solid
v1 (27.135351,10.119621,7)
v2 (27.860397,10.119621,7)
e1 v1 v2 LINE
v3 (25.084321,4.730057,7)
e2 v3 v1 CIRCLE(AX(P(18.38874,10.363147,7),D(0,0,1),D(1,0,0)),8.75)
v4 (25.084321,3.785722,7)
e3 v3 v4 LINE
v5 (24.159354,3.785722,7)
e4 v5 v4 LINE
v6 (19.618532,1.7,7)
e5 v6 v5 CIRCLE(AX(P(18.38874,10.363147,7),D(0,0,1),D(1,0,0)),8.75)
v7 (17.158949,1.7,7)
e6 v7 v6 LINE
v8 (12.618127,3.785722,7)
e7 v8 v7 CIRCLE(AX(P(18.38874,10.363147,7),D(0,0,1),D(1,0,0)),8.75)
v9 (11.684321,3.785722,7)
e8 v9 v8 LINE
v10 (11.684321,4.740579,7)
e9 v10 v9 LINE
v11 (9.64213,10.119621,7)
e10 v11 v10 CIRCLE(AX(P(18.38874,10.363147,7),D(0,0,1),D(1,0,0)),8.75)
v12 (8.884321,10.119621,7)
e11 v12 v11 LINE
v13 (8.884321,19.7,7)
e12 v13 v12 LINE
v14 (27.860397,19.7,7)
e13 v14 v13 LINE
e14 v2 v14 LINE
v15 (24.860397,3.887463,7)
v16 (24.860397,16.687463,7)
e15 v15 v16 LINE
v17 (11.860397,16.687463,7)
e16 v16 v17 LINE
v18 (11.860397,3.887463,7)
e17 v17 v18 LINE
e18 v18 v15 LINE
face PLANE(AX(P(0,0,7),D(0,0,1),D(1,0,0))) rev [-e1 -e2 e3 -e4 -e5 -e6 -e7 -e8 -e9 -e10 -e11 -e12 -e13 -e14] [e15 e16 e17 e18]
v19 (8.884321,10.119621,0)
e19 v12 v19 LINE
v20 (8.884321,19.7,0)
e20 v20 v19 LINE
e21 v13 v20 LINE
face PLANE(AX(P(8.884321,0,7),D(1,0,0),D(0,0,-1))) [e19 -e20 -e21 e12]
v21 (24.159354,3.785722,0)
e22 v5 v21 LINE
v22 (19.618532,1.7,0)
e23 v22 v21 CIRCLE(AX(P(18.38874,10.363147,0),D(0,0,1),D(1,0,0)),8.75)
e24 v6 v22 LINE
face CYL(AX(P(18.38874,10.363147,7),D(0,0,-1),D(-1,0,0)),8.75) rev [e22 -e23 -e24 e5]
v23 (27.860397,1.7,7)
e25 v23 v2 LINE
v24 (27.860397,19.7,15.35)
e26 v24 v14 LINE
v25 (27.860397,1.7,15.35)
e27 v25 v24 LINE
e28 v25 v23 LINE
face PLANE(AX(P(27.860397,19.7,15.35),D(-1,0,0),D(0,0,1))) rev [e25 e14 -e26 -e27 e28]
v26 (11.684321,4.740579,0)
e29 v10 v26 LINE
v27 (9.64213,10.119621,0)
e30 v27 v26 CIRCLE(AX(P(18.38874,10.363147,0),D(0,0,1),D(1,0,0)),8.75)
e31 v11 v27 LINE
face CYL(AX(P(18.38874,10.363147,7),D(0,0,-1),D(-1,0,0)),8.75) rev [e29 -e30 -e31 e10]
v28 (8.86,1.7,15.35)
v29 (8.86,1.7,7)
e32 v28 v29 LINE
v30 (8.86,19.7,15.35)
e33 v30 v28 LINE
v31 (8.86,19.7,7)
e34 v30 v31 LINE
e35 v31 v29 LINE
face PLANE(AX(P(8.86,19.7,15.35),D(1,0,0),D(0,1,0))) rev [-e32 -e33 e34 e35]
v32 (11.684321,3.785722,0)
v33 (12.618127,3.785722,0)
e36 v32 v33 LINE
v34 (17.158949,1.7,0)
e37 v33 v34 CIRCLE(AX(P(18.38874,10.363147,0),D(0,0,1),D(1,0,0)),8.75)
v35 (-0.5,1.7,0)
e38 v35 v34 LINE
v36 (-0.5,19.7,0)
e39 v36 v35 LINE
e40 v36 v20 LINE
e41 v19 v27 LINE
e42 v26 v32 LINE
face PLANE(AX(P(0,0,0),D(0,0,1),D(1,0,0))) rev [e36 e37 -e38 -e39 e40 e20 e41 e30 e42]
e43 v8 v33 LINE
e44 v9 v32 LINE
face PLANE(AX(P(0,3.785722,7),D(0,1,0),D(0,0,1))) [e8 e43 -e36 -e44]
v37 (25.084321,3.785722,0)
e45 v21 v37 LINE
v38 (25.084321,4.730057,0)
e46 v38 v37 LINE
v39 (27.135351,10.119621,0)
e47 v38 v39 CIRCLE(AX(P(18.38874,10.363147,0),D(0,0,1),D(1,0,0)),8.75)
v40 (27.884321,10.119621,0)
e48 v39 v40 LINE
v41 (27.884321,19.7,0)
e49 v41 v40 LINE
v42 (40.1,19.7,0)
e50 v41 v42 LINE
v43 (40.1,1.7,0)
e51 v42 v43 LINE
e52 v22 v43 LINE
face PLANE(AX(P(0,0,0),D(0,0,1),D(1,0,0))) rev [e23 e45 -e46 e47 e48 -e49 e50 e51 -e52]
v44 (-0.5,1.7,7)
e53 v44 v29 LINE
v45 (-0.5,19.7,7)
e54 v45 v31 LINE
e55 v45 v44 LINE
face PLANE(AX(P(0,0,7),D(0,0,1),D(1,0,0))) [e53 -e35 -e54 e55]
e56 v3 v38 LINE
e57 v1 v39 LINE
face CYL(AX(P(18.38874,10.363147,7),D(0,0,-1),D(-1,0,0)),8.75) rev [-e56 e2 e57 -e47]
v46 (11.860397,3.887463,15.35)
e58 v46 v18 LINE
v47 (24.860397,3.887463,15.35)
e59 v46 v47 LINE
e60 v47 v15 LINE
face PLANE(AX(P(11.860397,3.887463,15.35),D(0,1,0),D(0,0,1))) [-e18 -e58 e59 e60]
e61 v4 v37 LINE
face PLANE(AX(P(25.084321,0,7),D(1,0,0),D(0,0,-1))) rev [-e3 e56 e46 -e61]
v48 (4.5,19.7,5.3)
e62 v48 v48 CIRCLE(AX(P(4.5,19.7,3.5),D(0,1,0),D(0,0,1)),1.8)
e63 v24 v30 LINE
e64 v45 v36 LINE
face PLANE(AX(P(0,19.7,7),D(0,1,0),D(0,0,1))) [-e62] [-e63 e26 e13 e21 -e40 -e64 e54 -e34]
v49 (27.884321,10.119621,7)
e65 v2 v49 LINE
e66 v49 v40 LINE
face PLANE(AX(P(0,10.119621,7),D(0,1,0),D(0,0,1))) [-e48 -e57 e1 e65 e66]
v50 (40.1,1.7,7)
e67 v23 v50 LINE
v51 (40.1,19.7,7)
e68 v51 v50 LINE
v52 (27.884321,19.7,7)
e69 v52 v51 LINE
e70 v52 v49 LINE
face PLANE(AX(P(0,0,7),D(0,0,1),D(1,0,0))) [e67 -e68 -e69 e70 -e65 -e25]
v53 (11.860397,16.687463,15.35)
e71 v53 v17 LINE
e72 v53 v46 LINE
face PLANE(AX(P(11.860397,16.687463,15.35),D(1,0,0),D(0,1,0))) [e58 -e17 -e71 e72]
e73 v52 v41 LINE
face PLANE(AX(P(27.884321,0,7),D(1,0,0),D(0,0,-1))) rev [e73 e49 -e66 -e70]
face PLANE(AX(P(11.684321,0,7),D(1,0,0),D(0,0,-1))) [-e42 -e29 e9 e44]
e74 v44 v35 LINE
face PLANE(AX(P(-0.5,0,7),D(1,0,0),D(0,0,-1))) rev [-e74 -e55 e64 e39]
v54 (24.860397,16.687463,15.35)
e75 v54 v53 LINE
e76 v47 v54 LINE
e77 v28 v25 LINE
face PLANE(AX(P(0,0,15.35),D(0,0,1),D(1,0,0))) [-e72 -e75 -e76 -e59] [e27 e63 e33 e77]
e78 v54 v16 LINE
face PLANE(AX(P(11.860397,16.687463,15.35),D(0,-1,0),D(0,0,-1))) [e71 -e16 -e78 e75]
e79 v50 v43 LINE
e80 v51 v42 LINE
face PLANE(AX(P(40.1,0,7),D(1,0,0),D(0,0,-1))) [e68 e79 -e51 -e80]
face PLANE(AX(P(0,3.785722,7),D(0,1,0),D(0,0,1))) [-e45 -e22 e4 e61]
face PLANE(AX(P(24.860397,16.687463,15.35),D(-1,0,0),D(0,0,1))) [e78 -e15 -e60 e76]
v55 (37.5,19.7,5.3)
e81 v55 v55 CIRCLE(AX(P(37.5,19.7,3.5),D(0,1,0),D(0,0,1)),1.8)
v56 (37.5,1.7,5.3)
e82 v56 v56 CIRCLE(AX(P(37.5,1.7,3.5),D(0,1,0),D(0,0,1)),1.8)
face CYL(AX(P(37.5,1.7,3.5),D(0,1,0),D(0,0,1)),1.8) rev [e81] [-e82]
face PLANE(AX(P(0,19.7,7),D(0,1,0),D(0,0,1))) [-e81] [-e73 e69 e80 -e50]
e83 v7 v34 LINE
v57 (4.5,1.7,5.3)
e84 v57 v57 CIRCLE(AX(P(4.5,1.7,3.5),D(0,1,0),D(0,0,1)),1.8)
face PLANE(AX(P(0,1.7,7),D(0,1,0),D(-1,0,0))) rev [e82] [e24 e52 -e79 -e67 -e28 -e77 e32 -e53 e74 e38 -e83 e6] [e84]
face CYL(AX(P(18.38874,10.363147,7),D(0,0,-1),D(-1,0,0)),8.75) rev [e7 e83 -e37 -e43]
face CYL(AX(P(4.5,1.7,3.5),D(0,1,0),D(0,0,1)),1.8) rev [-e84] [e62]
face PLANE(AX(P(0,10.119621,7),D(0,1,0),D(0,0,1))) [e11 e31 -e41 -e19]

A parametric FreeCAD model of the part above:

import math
import FreeCAD as App
import Part
import Sketcher

doc = App.newDocument("Part")
params = doc.addObject("Spreadsheet::Sheet", "Params")
for row, (alias, value) in enumerate([
    ("sketch1_height", "18 mm"),
    ("sketch1_radius", "8.75 mm"),
    ("pad1_length", "7 mm"),
    ("sketch2_height", "18 mm"),
    ("sketch2_radius", "8.75 mm"),
    ("pad2_length", "7 mm"),
    ("sketch3_width", "13 mm"),
    ("sketch3_height", "18 mm"),
    ("sketch3_height2", "12.8 mm"),
    ("pad3_length", "8.35 mm"),
    ("sketch4_diameter", "3.6 mm"),
], start=1):
    params.set(f"A{row}", alias)
    params.set(f"B{row}", "=" + value)
    params.setAlias(f"B{row}", alias)

body = doc.addObject("PartDesign::Body", "Body")

sketch1 = body.newObject("Sketcher::SketchObject", "Sketch")
sketch1.AttachmentSupport = (doc.getObject("XY_Plane"), [""])
sketch1.MapMode = "FlatFace"
sketch1.addGeometry([
    Part.LineSegment(App.Vector(-0.5, 19.7, 0), App.Vector(-0.5, 1.7, 0)),
    Part.LineSegment(App.Vector(-0.5, 1.7, 0), App.Vector(17.2, 1.7, 0)),
    Part.ArcOfCircle(Part.Circle(App.Vector(18.4, 10.4, 0), App.Vector(0, 0, 1), 8.8), math.radians(-131), math.radians(-98)),
    Part.LineSegment(App.Vector(12.6, 3.8, 0), App.Vector(11.7, 3.8, 0)),
    Part.LineSegment(App.Vector(11.7, 3.8, 0), App.Vector(11.7, 4.7, 0)),
    Part.ArcOfCircle(Part.Circle(App.Vector(18.4, 10.4, 0), App.Vector(0, 0, 1), 8.8), math.radians(-178), math.radians(-140)),
    Part.LineSegment(App.Vector(9.6, 10.1, 0), App.Vector(8.9, 10.1, 0)),
    Part.LineSegment(App.Vector(8.9, 10.1, 0), App.Vector(8.9, 19.7, 0)),
    Part.LineSegment(App.Vector(8.9, 19.7, 0), App.Vector(-0.5, 19.7, 0)),
], False)
sketch1.addConstraint([
    Sketcher.Constraint("Coincident", 0, 2, 1, 1),
    Sketcher.Constraint("Coincident", 1, 2, 2, 2),
    Sketcher.Constraint("Coincident", 2, 1, 3, 1),
    Sketcher.Constraint("Coincident", 3, 2, 4, 1),
    Sketcher.Constraint("Coincident", 4, 2, 5, 2),
    Sketcher.Constraint("Coincident", 5, 1, 6, 1),
    Sketcher.Constraint("Coincident", 6, 2, 7, 1),
    Sketcher.Constraint("Coincident", 7, 2, 8, 1),
    Sketcher.Constraint("Coincident", 8, 2, 0, 1),
    Sketcher.Constraint("Vertical", 0),
    Sketcher.Constraint("Horizontal", 1),
    Sketcher.Constraint("Horizontal", 3),
    Sketcher.Constraint("Vertical", 4),
    Sketcher.Constraint("Horizontal", 6),
    Sketcher.Constraint("Vertical", 7),
    Sketcher.Constraint("Horizontal", 8),
    Sketcher.Constraint("Coincident", 5, 3, 2, 3),
    Sketcher.Constraint("Equal", 2, 5),
    Sketcher.Constraint("DistanceY", 0, 2, 0, 1, 18.0),
    Sketcher.Constraint("Radius", 2, 8.75),
    Sketcher.Constraint("DistanceX", 0, 2, -1, 1, 0.5),
    Sketcher.Constraint("DistanceY", -1, 1, 0, 2, 1.7),
    Sketcher.Constraint("DistanceX", 6, 2, 4, 2, 2.8),
    Sketcher.Constraint("DistanceX", 1, 1, 1, 2, 17.658949),
    Sketcher.Constraint("DistanceX", 6, 2, 6, 1, 0.757809),
    Sketcher.Constraint("DistanceX", 8, 2, 8, 1, 9.384321),
    Sketcher.Constraint("DistanceY", 7, 1, 7, 2, 9.580379),
    Sketcher.Constraint("DistanceY", 3, 2, 5, 1, 6.333899),
])
sketch1.setExpression("Constraints[18]", "Params.sketch1_height")
sketch1.setExpression("Constraints[19]", "Params.sketch1_radius")
pad1 = body.newObject("PartDesign::Pad", "Pad")
pad1.Profile = sketch1
pad1.setExpression("Length", "Params.pad1_length")
body2 = doc.addObject("PartDesign::Body", "Body001")

sketch2 = body2.newObject("Sketcher::SketchObject", "Sketch001")
sketch2.AttachmentSupport = (doc.getObject("XY_Plane001"), [""])
sketch2.MapMode = "FlatFace"
sketch2.addGeometry([
    Part.ArcOfCircle(Part.Circle(App.Vector(18.4, 10.4, 0), App.Vector(0, 0, 1), 8.8), math.radians(-82), math.radians(-49)),
    Part.LineSegment(App.Vector(19.6, 1.7, 0), App.Vector(40.1, 1.7, 0)),
    Part.LineSegment(App.Vector(40.1, 1.7, 0), App.Vector(40.1, 19.7, 0)),
    Part.LineSegment(App.Vector(40.1, 19.7, 0), App.Vector(27.9, 19.7, 0)),
    Part.LineSegment(App.Vector(27.9, 19.7, 0), App.Vector(27.9, 10.1, 0)),
    Part.LineSegment(App.Vector(27.9, 10.1, 0), App.Vector(27.1, 10.1, 0)),
    Part.ArcOfCircle(Part.Circle(App.Vector(18.4, 10.4, 0), App.Vector(0, 0, 1), 8.7), math.radians(-40), math.radians(-2)),
    Part.LineSegment(App.Vector(25.1, 4.7, 0), App.Vector(25.1, 3.8, 0)),
    Part.LineSegment(App.Vector(25.1, 3.8, 0), App.Vector(24.2, 3.8, 0)),
], False)
sketch2.addConstraint([
    Sketcher.Constraint("Coincident", 0, 1, 1, 1),
    Sketcher.Constraint("Coincident", 1, 2, 2, 1),
    Sketcher.Constraint("Coincident", 2, 2, 3, 1),
    Sketcher.Constraint("Coincident", 3, 2, 4, 1),
    Sketcher.Constraint("Coincident", 4, 2, 5, 1),
    Sketcher.Constraint("Coincident", 5, 2, 6, 2),
    Sketcher.Constraint("Coincident", 6, 1, 7, 1),
    Sketcher.Constraint("Coincident", 7, 2, 8, 1),
    Sketcher.Constraint("Coincident", 8, 2, 0, 2),
    Sketcher.Constraint("Horizontal", 1),
    Sketcher.Constraint("Vertical", 2),
    Sketcher.Constraint("Horizontal", 3),
    Sketcher.Constraint("Vertical", 4),
    Sketcher.Constraint("Horizontal", 5),
    Sketcher.Constraint("Vertical", 7),
    Sketcher.Constraint("Horizontal", 8),
    Sketcher.Constraint("Coincident", 6, 3, 0, 3),
    Sketcher.Constraint("Equal", 0, 6),
    Sketcher.Constraint("DistanceY", 2, 1, 2, 2, 18.0),
    Sketcher.Constraint("Radius", 0, 8.75),
    Sketcher.Constraint("DistanceY", -1, 1, 0, 1, 1.7),
    Sketcher.Constraint("DistanceX", -1, 1, 1, 2, 40.1),
    Sketcher.Constraint("DistanceX", 6, 1, 4, 2, 2.8),
    Sketcher.Constraint("DistanceX", 1, 1, 1, 2, 20.481468),
    Sketcher.Constraint("DistanceX", 3, 2, 3, 1, 12.215679),
    Sketcher.Constraint("DistanceX", 5, 2, 5, 1, 0.74897),
    Sketcher.Constraint("DistanceY", 4, 2, 4, 1, 9.580379),
    Sketcher.Constraint("DistanceY", 7, 2, 5, 2, 6.333899),
])
sketch2.setExpression("Constraints[18]", "Params.sketch2_height")
sketch2.setExpression("Constraints[19]", "Params.sketch2_radius")
pad2 = body2.newObject("PartDesign::Pad", "Pad001")
pad2.Profile = sketch2
pad2.setExpression("Length", "Params.pad2_length")
body.AllowCompound = True
doc.recompute()

boolean = body.newObject("PartDesign::Boolean", "Boolean")
boolean.Type = "Fuse"
boolean.addObjects([body2])

sketch3 = body.newObject("Sketcher::SketchObject", "Sketch002")
sketch3.AttachmentSupport = (doc.getObject("XY_Plane"), [""])
sketch3.MapMode = "FlatFace"
sketch3.AttachmentOffset = App.Placement(App.Vector(0, 0, 7), App.Rotation())
sketch3.addGeometry([
    Part.LineSegment(App.Vector(9, 20, 0), App.Vector(9, 2, 0)),
    Part.LineSegment(App.Vector(9, 2, 0), App.Vector(28, 2, 0)),
    Part.LineSegment(App.Vector(28, 2, 0), App.Vector(28, 20, 0)),
    Part.LineSegment(App.Vector(28, 20, 0), App.Vector(9, 20, 0)),
    Part.LineSegment(App.Vector(25, 4, 0), App.Vector(12, 4, 0)),
    Part.LineSegment(App.Vector(12, 4, 0), App.Vector(12, 17, 0)),
    Part.LineSegment(App.Vector(12, 17, 0), App.Vector(25, 17, 0)),
    Part.LineSegment(App.Vector(25, 17, 0), App.Vector(25, 4, 0)),
], False)
sketch3.addConstraint([
    Sketcher.Constraint("Coincident", 0, 2, 1, 1),
    Sketcher.Constraint("Coincident", 1, 2, 2, 1),
    Sketcher.Constraint("Coincident", 2, 2, 3, 1),
    Sketcher.Constraint("Coincident", 3, 2, 0, 1),
    Sketcher.Constraint("Coincident", 4, 2, 5, 1),
    Sketcher.Constraint("Coincident", 5, 2, 6, 1),
    Sketcher.Constraint("Coincident", 6, 2, 7, 1),
    Sketcher.Constraint("Coincident", 7, 2, 4, 1),
    Sketcher.Constraint("Vertical", 0),
    Sketcher.Constraint("Horizontal", 1),
    Sketcher.Constraint("Vertical", 2),
    Sketcher.Constraint("Horizontal", 3),
    Sketcher.Constraint("Horizontal", 4),
    Sketcher.Constraint("Vertical", 5),
    Sketcher.Constraint("Horizontal", 6),
    Sketcher.Constraint("Vertical", 7),
    Sketcher.Constraint("DistanceX", 4, 2, 4, 1, 13.0),
    Sketcher.Constraint("DistanceY", 0, 2, 0, 1, 18.0),
    Sketcher.Constraint("DistanceY", 5, 1, 5, 2, 12.8),
    Sketcher.Constraint("DistanceX", 4, 2, 1, 2, 16.0),
    Sketcher.Constraint("DistanceY", -1, 1, 0, 2, 1.7),
    Sketcher.Constraint("DistanceX", -1, 1, 0, 2, 8.86),
    Sketcher.Constraint("DistanceX", 1, 1, 1, 2, 19.000397),
    Sketcher.Constraint("DistanceY", -1, 1, 4, 2, 3.887463),
])
sketch3.setExpression("Constraints[16]", "Params.sketch3_width")
sketch3.setExpression("Constraints[17]", "Params.sketch3_height")
sketch3.setExpression("Constraints[18]", "Params.sketch3_height2")
pad3 = body.newObject("PartDesign::Pad", "Pad002")
pad3.Profile = sketch3
pad3.setExpression("Length", "Params.pad3_length")

sketch4 = body.newObject("Sketcher::SketchObject", "Sketch003")
sketch4.AttachmentSupport = (doc.getObject("XZ_Plane"), [""])
sketch4.MapMode = "FlatFace"
sketch4.AttachmentOffset = App.Placement(App.Vector(0, 0, -19.7), App.Rotation())
sketch4.addGeometry([
    Part.Circle(App.Vector(4.5, 3.5, 0), App.Vector(0, 0, 1), 1.8),
    Part.Circle(App.Vector(37.5, 3.5, 0), App.Vector(0, 0, 1), 1.8),
], False)
sketch4.addConstraint([
    Sketcher.Constraint("Equal", 0, 1),
    Sketcher.Constraint("Horizontal", 0, 3, 1, 3),
    Sketcher.Constraint("Diameter", 0, 3.6),
    Sketcher.Constraint("DistanceX", 0, 3, 1, 3, 33.0),
    Sketcher.Constraint("DistanceX", -1, 1, 0, 3, 4.5),
    Sketcher.Constraint("DistanceY", -1, 1, 0, 3, 3.5),
])
sketch4.setExpression("Constraints[2]", "Params.sketch4_diameter")
pocket1 = body.newObject("PartDesign::Pocket", "Pocket")
pocket1.Profile = sketch4
pocket1.Type = "ThroughAll"
pocket1.Reversed = True

doc.recompute()
